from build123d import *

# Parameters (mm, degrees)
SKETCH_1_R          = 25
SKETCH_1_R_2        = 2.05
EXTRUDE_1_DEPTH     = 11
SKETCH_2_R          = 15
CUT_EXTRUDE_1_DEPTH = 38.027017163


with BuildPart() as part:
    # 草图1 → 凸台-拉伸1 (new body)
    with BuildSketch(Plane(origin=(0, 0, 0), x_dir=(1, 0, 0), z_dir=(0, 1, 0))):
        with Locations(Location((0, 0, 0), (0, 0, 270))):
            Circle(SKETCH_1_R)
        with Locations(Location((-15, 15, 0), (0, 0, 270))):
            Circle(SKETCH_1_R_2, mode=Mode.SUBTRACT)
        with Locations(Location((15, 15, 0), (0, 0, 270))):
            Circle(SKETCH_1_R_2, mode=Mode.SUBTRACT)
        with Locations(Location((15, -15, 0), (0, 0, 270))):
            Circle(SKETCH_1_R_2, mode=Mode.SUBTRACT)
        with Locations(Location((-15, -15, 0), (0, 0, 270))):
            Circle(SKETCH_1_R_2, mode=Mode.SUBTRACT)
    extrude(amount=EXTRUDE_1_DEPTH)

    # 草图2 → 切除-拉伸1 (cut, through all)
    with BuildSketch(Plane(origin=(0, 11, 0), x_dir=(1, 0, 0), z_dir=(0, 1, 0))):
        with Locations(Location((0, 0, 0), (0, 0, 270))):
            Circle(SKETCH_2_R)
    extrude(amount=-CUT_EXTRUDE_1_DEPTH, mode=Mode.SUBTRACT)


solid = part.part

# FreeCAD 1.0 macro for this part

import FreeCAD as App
import Part
import Sketcher
from FreeCAD import Vector
Q = App.Units.Quantity

doc = App.newDocument("Part")
body = doc.addObject("PartDesign::Body", "Body")

sketch1 = body.newObject("Sketcher::SketchObject", "Sketch")
sketch1.AttachmentSupport = (doc.getObject("XZ_Plane"), [""])
sketch1.MapMode = "FlatFace"
sketch1.addGeometry([
    Part.Circle(Vector(0, 0, 0), Vector(0, 0, 1), 25),
    Part.Circle(Vector(-15, -15, 0), Vector(0, 0, 1), 2),
    Part.Circle(Vector(-15, 15, 0), Vector(0, 0, 1), 2),
    Part.Circle(Vector(15, -15, 0), Vector(0, 0, 1), 2),
    Part.Circle(Vector(15, 15, 0), Vector(0, 0, 1), 2),
], False)
sketch1.addConstraint([
    Sketcher.Constraint("Coincident", 0, 3, -1, 1),
    Sketcher.Constraint("Equal", 1, 2),
    Sketcher.Constraint("Equal", 2, 3),
    Sketcher.Constraint("Equal", 3, 4),
    Sketcher.Constraint("Symmetric", 2, 3, 3, 3, -1, 1),
    Sketcher.Constraint("Symmetric", 1, 3, 4, 3, -1, 1),
    Sketcher.Constraint("Symmetric", 1, 3, 3, 3, -2),
    Sketcher.Constraint("Diameter", 0, Q("50 mm")),
    Sketcher.Constraint("Diameter", 1, Q("4.1 mm")),
    Sketcher.Constraint("DistanceX", 1, 3, -1, 1, Q("15 mm")),
    Sketcher.Constraint("DistanceY", 1, 3, -1, 1, Q("15 mm")),
])
pad1 = body.newObject("PartDesign::Pad", "Pad")
pad1.Profile = sketch1
pad1.Length = 11
pad1.Reversed = True

sketch2 = body.newObject("Sketcher::SketchObject", "Sketch001")
sketch2.AttachmentSupport = (doc.getObject("XZ_Plane"), [""])
sketch2.MapMode = "FlatFace"
sketch2.AttachmentOffset = App.Placement(Vector(0, 0, -11), App.Rotation())
sketch2.addGeometry(Part.Circle(Vector(0, 0, 0), Vector(0, 0, 1), 15), False)
sketch2.addConstraint([
    Sketcher.Constraint("Coincident", 0, 3, -1, 1),
    Sketcher.Constraint("Diameter", 0, Q("30 mm")),
])
pocket1 = body.newObject("PartDesign::Pocket", "Pocket")
pocket1.Profile = sketch2
pocket1.Type = "ThroughAll"
pocket1.Reversed = True

doc.recompute()
